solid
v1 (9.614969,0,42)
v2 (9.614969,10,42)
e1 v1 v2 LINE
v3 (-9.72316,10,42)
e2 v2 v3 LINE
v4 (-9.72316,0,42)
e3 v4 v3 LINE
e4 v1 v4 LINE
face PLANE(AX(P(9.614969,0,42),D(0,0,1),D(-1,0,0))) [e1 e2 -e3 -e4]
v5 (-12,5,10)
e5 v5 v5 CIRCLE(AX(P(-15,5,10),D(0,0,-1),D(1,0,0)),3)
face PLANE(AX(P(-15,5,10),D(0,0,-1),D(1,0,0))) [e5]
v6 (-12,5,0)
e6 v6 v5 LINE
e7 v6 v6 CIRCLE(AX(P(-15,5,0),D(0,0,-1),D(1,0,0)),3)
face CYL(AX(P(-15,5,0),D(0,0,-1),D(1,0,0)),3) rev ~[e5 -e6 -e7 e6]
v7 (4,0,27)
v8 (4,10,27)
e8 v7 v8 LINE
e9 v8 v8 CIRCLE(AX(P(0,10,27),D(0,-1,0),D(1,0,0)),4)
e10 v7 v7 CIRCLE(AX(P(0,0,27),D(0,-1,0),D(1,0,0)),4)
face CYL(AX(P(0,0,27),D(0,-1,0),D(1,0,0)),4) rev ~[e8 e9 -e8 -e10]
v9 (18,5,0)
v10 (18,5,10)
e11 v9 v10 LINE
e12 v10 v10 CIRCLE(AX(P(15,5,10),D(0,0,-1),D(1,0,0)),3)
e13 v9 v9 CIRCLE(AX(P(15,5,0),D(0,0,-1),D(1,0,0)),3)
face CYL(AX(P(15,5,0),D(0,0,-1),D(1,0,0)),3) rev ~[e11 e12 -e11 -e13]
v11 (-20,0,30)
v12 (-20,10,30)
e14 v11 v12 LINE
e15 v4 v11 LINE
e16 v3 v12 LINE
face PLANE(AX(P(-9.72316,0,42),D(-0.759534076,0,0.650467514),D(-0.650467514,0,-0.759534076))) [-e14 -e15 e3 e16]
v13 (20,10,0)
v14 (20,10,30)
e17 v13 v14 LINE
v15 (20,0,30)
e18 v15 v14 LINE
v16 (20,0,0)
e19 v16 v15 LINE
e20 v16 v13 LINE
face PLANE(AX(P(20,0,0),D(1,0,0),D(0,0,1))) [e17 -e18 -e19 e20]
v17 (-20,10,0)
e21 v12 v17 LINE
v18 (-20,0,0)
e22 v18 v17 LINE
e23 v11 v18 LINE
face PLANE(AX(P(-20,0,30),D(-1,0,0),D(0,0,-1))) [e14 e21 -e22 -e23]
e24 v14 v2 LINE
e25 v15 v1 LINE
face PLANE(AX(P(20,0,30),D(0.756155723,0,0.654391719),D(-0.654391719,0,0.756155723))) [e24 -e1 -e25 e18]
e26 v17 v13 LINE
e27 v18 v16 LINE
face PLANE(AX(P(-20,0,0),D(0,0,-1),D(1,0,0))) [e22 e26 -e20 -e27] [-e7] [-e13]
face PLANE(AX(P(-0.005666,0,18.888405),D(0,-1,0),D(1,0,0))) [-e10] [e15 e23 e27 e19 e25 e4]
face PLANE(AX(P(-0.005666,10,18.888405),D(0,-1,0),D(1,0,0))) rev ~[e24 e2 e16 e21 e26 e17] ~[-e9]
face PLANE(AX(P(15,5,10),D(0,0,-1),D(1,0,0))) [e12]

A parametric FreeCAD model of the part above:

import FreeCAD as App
import Part
import Sketcher


def add_polygon(sketch, points):
    """Adds a closed chain of lines whose ends are joined by coincident constraints."""
    first, n = sketch.GeometryCount, len(points)
    for a, b in zip(points, points[1:] + points[:1]):
        sketch.addGeometry(Part.LineSegment(App.Vector(*a, 0), App.Vector(*b, 0)), False)
    for i in range(n):
        sketch.addConstraint(Sketcher.Constraint("Coincident", first + i, 2, first + (i + 1) % n, 1))

doc = App.newDocument("Part")
body = doc.addObject("PartDesign::Body", "Body")

# Sketch on XZ plane
sketch1 = body.newObject("Sketcher::SketchObject", "Sketch")
sketch1.AttachmentSupport = (doc.getObject("XZ_Plane"), [""])
sketch1.MapMode = "FlatFace"
add_polygon(sketch1, [(-20, 30), (-20, 0), (20, 0), (20, 30), (9.6, 42), (-9.7, 42)])  # lines 0-5
sketch1.addGeometry(Part.Circle(App.Vector(0, 27, 0), App.Vector(0, 0, 1), 4), False)  # 6
sketch1.addConstraint(Sketcher.Constraint("Vertical", 0))
sketch1.addConstraint(Sketcher.Constraint("Horizontal", 1))
sketch1.addConstraint(Sketcher.Constraint("Vertical", 2))
sketch1.addConstraint(Sketcher.Constraint("Horizontal", 4))
sketch1.addConstraint(Sketcher.Constraint("Symmetric", 0, 2, 1, 2, -1, 1))
sketch1.addConstraint(Sketcher.Constraint("PointOnObject", 6, 3, -2))
sketch1.addConstraint(Sketcher.Constraint("Horizontal", 2, 2, 5, 2))
sketch1.addConstraint(Sketcher.Constraint("Diameter", 6, 8.0))
sketch1.addConstraint(Sketcher.Constraint("DistanceX", 1, 1, 1, 2, 40.0))
sketch1.addConstraint(Sketcher.Constraint("DistanceY", 0, 2, 0, 1, 30.0))
sketch1.addConstraint(Sketcher.Constraint("DistanceY", -1, 1, 6, 3, 27.0))
sketch1.addConstraint(Sketcher.Constraint("DistanceY", -1, 1, 3, 2, 42.0))
sketch1.addConstraint(Sketcher.Constraint("DistanceX", 4, 2, 4, 1, 19.338129))
sketch1.addConstraint(Sketcher.Constraint("Distance", 5, 15.799159))
pad1 = body.newObject("PartDesign::Pad", "Pad")
pad1.Profile = sketch1
pad1.Length = 10
pad1.Reversed = True

# Sketch on XY plane
sketch2 = body.newObject("Sketcher::SketchObject", "Sketch001")
sketch2.AttachmentSupport = (doc.getObject("XY_Plane"), [""])
sketch2.MapMode = "FlatFace"
sketch2.addGeometry(Part.Circle(App.Vector(-15, 5, 0), App.Vector(0, 0, 1), 3), False)
sketch2.addGeometry(Part.Circle(App.Vector(15, 5, 0), App.Vector(0, 0, 1), 3), False)
sketch2.addConstraint(Sketcher.Constraint("Equal", 0, 1))
sketch2.addConstraint(Sketcher.Constraint("Symmetric", 0, 3, 1, 3, -2))
sketch2.addConstraint(Sketcher.Constraint("Diameter", 0, 6.0))
sketch2.addConstraint(Sketcher.Constraint("DistanceX", 0, 3, -1, 1, 15.0))
sketch2.addConstraint(Sketcher.Constraint("DistanceY", -1, 1, 0, 3, 5.0))
pocket1 = body.newObject("PartDesign::Pocket", "Pocket")
pocket1.Profile = sketch2
pocket1.Length = 10
pocket1.Reversed = True

doc.recompute()
